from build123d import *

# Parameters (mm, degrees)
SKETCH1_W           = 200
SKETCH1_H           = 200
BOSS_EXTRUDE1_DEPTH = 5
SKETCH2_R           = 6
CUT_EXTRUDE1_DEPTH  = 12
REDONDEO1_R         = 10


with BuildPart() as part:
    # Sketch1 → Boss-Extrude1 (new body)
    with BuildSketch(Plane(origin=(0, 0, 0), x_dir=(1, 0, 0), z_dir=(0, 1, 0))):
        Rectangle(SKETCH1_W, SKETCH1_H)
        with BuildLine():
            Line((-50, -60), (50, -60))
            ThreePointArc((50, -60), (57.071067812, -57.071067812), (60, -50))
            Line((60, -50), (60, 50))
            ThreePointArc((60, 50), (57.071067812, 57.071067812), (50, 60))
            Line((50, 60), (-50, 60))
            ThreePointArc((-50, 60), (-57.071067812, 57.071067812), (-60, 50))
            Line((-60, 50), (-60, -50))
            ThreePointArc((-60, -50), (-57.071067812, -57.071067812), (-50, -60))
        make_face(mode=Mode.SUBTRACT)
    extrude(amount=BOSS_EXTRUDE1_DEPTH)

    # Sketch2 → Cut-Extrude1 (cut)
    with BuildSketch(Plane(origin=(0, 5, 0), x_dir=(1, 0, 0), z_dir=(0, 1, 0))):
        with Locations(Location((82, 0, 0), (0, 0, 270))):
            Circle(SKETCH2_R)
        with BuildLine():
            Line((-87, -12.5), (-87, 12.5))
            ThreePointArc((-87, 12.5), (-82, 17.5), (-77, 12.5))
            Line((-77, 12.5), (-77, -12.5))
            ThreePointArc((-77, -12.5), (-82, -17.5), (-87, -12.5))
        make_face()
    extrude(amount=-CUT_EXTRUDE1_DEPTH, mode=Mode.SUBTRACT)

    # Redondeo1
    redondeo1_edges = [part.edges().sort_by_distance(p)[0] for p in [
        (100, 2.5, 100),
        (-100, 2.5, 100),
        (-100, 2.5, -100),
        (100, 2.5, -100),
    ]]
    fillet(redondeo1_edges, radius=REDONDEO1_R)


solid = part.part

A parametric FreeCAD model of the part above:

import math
import FreeCAD as App
import Part
import Sketcher
from FreeCAD import Vector


def edges_at(feature, points):
    """Names of the edges that pass closest to the given points."""
    edges = feature.Shape.Edges
    near = lambda p: min(range(len(edges)), key=lambda i: edges[i].distToShape(Part.Vertex(*p))[0])
    return sorted({f"Edge{near(p) + 1}" for p in points})

doc = App.newDocument("Part")
params = doc.addObject("Spreadsheet::Sheet", "Params")
for row, (alias, value) in enumerate([
    ("sketch1_radius", "10 mm"),
    ("sketch1_width", "200 mm"),
    ("sketch1_width2", "100 mm"),
    ("pad1_length", "5 mm"),
    ("sketch2_diameter", "12 mm"),
    ("sketch2_radius", "5 mm"),
    ("sketch2_height", "25 mm"),
    ("pocket1_length", "12 mm"),
    ("fillet_radius", "10 mm"),
], start=1):
    params.set(f"A{row}", alias)
    params.set(f"B{row}", "=" + value)
    params.setAlias(f"B{row}", alias)

body = doc.addObject("PartDesign::Body", "Body")

# Sketch on XZ plane
sketch1 = doc.addObject("Sketcher::SketchObject", "Sketch")
body.addObject(sketch1)
sketch1.AttachmentSupport = (doc.XZ_Plane, [""])
sketch1.MapMode = "FlatFace"
sketch1.addGeometry([
    Part.LineSegment(Vector(-100, -100, 0), Vector(-100, 100, 0)),  # 0
    Part.LineSegment(Vector(-100, 100, 0), Vector(100, 100, 0)),  # 1
    Part.LineSegment(Vector(100, 100, 0), Vector(100, -100, 0)),  # 2
    Part.LineSegment(Vector(100, -100, 0), Vector(-100, -100, 0)),  # 3
    Part.LineSegment(Vector(50, 60, 0), Vector(-50, 60, 0)),  # 4
    Part.ArcOfCircle(Part.Circle(Vector(-50, 50, 0), Vector(0, 0, 1), 10), math.radians(90), math.radians(180)),  # 5
    Part.LineSegment(Vector(-60, 50, 0), Vector(-60, -50, 0)),  # 6
    Part.ArcOfCircle(Part.Circle(Vector(-50, -50, 0), Vector(0, 0, 1), 10), math.radians(180), math.radians(270)),  # 7
    Part.LineSegment(Vector(-50, -60, 0), Vector(50, -60, 0)),  # 8
    Part.ArcOfCircle(Part.Circle(Vector(50, -50, 0), Vector(0, 0, 1), 10), math.radians(-90), math.radians(0)),  # 9
    Part.LineSegment(Vector(60, -50, 0), Vector(60, 50, 0)),  # 10
    Part.ArcOfCircle(Part.Circle(Vector(50, 50, 0), Vector(0, 0, 1), 10), math.radians(0), math.radians(90)),  # 11
], False)
sketch1.addConstraint([
    Sketcher.Constraint("Coincident", 0, 2, 1, 1),
    Sketcher.Constraint("Coincident", 1, 2, 2, 1),
    Sketcher.Constraint("Coincident", 2, 2, 3, 1),
    Sketcher.Constraint("Coincident", 3, 2, 0, 1),
    Sketcher.Constraint("Tangent", 4, 2, 5, 1),
    Sketcher.Constraint("Tangent", 5, 2, 6, 1),
    Sketcher.Constraint("Tangent", 6, 2, 7, 1),
    Sketcher.Constraint("Tangent", 7, 2, 8, 1),
    Sketcher.Constraint("Tangent", 8, 2, 9, 1),
    Sketcher.Constraint("Tangent", 9, 2, 10, 1),
    Sketcher.Constraint("Tangent", 10, 2, 11, 1),
    Sketcher.Constraint("Tangent", 11, 2, 4, 1),
    Sketcher.Constraint("Vertical", 0),
    Sketcher.Constraint("Horizontal", 1),
    Sketcher.Constraint("Vertical", 2),
    Sketcher.Constraint("Horizontal", 3),
    Sketcher.Constraint("Horizontal", 4),
    Sketcher.Constraint("Vertical", 6),
    Sketcher.Constraint("Horizontal", 8),
    Sketcher.Constraint("Vertical", 10),
    Sketcher.Constraint("Equal", 5, 7),
    Sketcher.Constraint("Equal", 7, 9),
    Sketcher.Constraint("Equal", 9, 11),
    Sketcher.Constraint("Symmetric", 5, 3, 9, 3, -1, 1),
    Sketcher.Constraint("Symmetric", 0, 2, 2, 2, -1, 1),
    Sketcher.Constraint("Equal", 3, 0),
    Sketcher.Constraint("Equal", 8, 6),
    Sketcher.Constraint("Radius", 5, 10.0),
    Sketcher.Constraint("DistanceX", 1, 1, 1, 2, 200.0),
    Sketcher.Constraint("DistanceX", 4, 2, 4, 1, 100.0),
])
sketch1.setExpression("Constraints[27]", "Params.sketch1_radius")
sketch1.setExpression("Constraints[28]", "Params.sketch1_width")
sketch1.setExpression("Constraints[29]", "Params.sketch1_width2")
pad1 = doc.addObject("PartDesign::Pad", "Pad")
body.addObject(pad1)
pad1.Profile = sketch1
pad1.setExpression("Length", "Params.pad1_length")
pad1.Reversed = True

# Sketch on XZ plane
sketch2 = doc.addObject("Sketcher::SketchObject", "Sketch001")
body.addObject(sketch2)
sketch2.AttachmentSupport = (doc.XZ_Plane, [""])
sketch2.MapMode = "FlatFace"
sketch2.AttachmentOffset = App.Placement(Vector(0, 0, -5), App.Rotation())
sketch2.addGeometry([
    Part.Circle(Vector(82, 0, 0), Vector(0, 0, 1), 6),  # 0
    Part.LineSegment(Vector(-87, -12, 0), Vector(-87, 12, 0)),  # 1
    Part.ArcOfCircle(Part.Circle(Vector(-82, 12, 0), Vector(0, 0, 1), 5), math.radians(0), math.radians(180)),  # 2
    Part.LineSegment(Vector(-77, 12, 0), Vector(-77, -12, 0)),  # 3
    Part.ArcOfCircle(Part.Circle(Vector(-82, -12, 0), Vector(0, 0, 1), 5), math.radians(180), math.radians(360)),  # 4
], False)
sketch2.addConstraint([
    Sketcher.Constraint("Tangent", 1, 2, 2, 2),
    Sketcher.Constraint("Tangent", 2, 1, 3, 1),
    Sketcher.Constraint("Tangent", 3, 2, 4, 2),
    Sketcher.Constraint("Tangent", 4, 1, 1, 1),
    Sketcher.Constraint("Vertical", 1),
    Sketcher.Constraint("Vertical", 3),
    Sketcher.Constraint("PointOnObject", 0, 3, -1),
    Sketcher.Constraint("Diameter", 0, 12.0),
    Sketcher.Constraint("Radius", 2, 5.0),
    Sketcher.Constraint("DistanceY", 1, 1, 1, 2, 25.0),
    Sketcher.Constraint("DistanceX", -1, 1, 0, 3, 82.0),
    Sketcher.Constraint("DistanceX", 2, 3, -1, 1, 82.0),
    Sketcher.Constraint("DistanceY", -1, 1, 2, 3, 12.5),
])
sketch2.setExpression("Constraints[7]", "Params.sketch2_diameter")
sketch2.setExpression("Constraints[8]", "Params.sketch2_radius")
sketch2.setExpression("Constraints[9]", "Params.sketch2_height")
pocket1 = doc.addObject("PartDesign::Pocket", "Pocket")
body.addObject(pocket1)
pocket1.Profile = sketch2
pocket1.setExpression("Length", "Params.pocket1_length")
pocket1.Reversed = True
doc.recompute()

fillet = doc.addObject("PartDesign::Fillet", "Fillet")
body.addObject(fillet)
fillet.Base = (pocket1, edges_at(pocket1, [
    (100, 2.5, 100),
    (-100, 2.5, 100),
    (-100, 2.5, -100),
    (100, 2.5, -100),
]))
fillet.setExpression("Radius", "Params.fillet_radius")

doc.recompute()
